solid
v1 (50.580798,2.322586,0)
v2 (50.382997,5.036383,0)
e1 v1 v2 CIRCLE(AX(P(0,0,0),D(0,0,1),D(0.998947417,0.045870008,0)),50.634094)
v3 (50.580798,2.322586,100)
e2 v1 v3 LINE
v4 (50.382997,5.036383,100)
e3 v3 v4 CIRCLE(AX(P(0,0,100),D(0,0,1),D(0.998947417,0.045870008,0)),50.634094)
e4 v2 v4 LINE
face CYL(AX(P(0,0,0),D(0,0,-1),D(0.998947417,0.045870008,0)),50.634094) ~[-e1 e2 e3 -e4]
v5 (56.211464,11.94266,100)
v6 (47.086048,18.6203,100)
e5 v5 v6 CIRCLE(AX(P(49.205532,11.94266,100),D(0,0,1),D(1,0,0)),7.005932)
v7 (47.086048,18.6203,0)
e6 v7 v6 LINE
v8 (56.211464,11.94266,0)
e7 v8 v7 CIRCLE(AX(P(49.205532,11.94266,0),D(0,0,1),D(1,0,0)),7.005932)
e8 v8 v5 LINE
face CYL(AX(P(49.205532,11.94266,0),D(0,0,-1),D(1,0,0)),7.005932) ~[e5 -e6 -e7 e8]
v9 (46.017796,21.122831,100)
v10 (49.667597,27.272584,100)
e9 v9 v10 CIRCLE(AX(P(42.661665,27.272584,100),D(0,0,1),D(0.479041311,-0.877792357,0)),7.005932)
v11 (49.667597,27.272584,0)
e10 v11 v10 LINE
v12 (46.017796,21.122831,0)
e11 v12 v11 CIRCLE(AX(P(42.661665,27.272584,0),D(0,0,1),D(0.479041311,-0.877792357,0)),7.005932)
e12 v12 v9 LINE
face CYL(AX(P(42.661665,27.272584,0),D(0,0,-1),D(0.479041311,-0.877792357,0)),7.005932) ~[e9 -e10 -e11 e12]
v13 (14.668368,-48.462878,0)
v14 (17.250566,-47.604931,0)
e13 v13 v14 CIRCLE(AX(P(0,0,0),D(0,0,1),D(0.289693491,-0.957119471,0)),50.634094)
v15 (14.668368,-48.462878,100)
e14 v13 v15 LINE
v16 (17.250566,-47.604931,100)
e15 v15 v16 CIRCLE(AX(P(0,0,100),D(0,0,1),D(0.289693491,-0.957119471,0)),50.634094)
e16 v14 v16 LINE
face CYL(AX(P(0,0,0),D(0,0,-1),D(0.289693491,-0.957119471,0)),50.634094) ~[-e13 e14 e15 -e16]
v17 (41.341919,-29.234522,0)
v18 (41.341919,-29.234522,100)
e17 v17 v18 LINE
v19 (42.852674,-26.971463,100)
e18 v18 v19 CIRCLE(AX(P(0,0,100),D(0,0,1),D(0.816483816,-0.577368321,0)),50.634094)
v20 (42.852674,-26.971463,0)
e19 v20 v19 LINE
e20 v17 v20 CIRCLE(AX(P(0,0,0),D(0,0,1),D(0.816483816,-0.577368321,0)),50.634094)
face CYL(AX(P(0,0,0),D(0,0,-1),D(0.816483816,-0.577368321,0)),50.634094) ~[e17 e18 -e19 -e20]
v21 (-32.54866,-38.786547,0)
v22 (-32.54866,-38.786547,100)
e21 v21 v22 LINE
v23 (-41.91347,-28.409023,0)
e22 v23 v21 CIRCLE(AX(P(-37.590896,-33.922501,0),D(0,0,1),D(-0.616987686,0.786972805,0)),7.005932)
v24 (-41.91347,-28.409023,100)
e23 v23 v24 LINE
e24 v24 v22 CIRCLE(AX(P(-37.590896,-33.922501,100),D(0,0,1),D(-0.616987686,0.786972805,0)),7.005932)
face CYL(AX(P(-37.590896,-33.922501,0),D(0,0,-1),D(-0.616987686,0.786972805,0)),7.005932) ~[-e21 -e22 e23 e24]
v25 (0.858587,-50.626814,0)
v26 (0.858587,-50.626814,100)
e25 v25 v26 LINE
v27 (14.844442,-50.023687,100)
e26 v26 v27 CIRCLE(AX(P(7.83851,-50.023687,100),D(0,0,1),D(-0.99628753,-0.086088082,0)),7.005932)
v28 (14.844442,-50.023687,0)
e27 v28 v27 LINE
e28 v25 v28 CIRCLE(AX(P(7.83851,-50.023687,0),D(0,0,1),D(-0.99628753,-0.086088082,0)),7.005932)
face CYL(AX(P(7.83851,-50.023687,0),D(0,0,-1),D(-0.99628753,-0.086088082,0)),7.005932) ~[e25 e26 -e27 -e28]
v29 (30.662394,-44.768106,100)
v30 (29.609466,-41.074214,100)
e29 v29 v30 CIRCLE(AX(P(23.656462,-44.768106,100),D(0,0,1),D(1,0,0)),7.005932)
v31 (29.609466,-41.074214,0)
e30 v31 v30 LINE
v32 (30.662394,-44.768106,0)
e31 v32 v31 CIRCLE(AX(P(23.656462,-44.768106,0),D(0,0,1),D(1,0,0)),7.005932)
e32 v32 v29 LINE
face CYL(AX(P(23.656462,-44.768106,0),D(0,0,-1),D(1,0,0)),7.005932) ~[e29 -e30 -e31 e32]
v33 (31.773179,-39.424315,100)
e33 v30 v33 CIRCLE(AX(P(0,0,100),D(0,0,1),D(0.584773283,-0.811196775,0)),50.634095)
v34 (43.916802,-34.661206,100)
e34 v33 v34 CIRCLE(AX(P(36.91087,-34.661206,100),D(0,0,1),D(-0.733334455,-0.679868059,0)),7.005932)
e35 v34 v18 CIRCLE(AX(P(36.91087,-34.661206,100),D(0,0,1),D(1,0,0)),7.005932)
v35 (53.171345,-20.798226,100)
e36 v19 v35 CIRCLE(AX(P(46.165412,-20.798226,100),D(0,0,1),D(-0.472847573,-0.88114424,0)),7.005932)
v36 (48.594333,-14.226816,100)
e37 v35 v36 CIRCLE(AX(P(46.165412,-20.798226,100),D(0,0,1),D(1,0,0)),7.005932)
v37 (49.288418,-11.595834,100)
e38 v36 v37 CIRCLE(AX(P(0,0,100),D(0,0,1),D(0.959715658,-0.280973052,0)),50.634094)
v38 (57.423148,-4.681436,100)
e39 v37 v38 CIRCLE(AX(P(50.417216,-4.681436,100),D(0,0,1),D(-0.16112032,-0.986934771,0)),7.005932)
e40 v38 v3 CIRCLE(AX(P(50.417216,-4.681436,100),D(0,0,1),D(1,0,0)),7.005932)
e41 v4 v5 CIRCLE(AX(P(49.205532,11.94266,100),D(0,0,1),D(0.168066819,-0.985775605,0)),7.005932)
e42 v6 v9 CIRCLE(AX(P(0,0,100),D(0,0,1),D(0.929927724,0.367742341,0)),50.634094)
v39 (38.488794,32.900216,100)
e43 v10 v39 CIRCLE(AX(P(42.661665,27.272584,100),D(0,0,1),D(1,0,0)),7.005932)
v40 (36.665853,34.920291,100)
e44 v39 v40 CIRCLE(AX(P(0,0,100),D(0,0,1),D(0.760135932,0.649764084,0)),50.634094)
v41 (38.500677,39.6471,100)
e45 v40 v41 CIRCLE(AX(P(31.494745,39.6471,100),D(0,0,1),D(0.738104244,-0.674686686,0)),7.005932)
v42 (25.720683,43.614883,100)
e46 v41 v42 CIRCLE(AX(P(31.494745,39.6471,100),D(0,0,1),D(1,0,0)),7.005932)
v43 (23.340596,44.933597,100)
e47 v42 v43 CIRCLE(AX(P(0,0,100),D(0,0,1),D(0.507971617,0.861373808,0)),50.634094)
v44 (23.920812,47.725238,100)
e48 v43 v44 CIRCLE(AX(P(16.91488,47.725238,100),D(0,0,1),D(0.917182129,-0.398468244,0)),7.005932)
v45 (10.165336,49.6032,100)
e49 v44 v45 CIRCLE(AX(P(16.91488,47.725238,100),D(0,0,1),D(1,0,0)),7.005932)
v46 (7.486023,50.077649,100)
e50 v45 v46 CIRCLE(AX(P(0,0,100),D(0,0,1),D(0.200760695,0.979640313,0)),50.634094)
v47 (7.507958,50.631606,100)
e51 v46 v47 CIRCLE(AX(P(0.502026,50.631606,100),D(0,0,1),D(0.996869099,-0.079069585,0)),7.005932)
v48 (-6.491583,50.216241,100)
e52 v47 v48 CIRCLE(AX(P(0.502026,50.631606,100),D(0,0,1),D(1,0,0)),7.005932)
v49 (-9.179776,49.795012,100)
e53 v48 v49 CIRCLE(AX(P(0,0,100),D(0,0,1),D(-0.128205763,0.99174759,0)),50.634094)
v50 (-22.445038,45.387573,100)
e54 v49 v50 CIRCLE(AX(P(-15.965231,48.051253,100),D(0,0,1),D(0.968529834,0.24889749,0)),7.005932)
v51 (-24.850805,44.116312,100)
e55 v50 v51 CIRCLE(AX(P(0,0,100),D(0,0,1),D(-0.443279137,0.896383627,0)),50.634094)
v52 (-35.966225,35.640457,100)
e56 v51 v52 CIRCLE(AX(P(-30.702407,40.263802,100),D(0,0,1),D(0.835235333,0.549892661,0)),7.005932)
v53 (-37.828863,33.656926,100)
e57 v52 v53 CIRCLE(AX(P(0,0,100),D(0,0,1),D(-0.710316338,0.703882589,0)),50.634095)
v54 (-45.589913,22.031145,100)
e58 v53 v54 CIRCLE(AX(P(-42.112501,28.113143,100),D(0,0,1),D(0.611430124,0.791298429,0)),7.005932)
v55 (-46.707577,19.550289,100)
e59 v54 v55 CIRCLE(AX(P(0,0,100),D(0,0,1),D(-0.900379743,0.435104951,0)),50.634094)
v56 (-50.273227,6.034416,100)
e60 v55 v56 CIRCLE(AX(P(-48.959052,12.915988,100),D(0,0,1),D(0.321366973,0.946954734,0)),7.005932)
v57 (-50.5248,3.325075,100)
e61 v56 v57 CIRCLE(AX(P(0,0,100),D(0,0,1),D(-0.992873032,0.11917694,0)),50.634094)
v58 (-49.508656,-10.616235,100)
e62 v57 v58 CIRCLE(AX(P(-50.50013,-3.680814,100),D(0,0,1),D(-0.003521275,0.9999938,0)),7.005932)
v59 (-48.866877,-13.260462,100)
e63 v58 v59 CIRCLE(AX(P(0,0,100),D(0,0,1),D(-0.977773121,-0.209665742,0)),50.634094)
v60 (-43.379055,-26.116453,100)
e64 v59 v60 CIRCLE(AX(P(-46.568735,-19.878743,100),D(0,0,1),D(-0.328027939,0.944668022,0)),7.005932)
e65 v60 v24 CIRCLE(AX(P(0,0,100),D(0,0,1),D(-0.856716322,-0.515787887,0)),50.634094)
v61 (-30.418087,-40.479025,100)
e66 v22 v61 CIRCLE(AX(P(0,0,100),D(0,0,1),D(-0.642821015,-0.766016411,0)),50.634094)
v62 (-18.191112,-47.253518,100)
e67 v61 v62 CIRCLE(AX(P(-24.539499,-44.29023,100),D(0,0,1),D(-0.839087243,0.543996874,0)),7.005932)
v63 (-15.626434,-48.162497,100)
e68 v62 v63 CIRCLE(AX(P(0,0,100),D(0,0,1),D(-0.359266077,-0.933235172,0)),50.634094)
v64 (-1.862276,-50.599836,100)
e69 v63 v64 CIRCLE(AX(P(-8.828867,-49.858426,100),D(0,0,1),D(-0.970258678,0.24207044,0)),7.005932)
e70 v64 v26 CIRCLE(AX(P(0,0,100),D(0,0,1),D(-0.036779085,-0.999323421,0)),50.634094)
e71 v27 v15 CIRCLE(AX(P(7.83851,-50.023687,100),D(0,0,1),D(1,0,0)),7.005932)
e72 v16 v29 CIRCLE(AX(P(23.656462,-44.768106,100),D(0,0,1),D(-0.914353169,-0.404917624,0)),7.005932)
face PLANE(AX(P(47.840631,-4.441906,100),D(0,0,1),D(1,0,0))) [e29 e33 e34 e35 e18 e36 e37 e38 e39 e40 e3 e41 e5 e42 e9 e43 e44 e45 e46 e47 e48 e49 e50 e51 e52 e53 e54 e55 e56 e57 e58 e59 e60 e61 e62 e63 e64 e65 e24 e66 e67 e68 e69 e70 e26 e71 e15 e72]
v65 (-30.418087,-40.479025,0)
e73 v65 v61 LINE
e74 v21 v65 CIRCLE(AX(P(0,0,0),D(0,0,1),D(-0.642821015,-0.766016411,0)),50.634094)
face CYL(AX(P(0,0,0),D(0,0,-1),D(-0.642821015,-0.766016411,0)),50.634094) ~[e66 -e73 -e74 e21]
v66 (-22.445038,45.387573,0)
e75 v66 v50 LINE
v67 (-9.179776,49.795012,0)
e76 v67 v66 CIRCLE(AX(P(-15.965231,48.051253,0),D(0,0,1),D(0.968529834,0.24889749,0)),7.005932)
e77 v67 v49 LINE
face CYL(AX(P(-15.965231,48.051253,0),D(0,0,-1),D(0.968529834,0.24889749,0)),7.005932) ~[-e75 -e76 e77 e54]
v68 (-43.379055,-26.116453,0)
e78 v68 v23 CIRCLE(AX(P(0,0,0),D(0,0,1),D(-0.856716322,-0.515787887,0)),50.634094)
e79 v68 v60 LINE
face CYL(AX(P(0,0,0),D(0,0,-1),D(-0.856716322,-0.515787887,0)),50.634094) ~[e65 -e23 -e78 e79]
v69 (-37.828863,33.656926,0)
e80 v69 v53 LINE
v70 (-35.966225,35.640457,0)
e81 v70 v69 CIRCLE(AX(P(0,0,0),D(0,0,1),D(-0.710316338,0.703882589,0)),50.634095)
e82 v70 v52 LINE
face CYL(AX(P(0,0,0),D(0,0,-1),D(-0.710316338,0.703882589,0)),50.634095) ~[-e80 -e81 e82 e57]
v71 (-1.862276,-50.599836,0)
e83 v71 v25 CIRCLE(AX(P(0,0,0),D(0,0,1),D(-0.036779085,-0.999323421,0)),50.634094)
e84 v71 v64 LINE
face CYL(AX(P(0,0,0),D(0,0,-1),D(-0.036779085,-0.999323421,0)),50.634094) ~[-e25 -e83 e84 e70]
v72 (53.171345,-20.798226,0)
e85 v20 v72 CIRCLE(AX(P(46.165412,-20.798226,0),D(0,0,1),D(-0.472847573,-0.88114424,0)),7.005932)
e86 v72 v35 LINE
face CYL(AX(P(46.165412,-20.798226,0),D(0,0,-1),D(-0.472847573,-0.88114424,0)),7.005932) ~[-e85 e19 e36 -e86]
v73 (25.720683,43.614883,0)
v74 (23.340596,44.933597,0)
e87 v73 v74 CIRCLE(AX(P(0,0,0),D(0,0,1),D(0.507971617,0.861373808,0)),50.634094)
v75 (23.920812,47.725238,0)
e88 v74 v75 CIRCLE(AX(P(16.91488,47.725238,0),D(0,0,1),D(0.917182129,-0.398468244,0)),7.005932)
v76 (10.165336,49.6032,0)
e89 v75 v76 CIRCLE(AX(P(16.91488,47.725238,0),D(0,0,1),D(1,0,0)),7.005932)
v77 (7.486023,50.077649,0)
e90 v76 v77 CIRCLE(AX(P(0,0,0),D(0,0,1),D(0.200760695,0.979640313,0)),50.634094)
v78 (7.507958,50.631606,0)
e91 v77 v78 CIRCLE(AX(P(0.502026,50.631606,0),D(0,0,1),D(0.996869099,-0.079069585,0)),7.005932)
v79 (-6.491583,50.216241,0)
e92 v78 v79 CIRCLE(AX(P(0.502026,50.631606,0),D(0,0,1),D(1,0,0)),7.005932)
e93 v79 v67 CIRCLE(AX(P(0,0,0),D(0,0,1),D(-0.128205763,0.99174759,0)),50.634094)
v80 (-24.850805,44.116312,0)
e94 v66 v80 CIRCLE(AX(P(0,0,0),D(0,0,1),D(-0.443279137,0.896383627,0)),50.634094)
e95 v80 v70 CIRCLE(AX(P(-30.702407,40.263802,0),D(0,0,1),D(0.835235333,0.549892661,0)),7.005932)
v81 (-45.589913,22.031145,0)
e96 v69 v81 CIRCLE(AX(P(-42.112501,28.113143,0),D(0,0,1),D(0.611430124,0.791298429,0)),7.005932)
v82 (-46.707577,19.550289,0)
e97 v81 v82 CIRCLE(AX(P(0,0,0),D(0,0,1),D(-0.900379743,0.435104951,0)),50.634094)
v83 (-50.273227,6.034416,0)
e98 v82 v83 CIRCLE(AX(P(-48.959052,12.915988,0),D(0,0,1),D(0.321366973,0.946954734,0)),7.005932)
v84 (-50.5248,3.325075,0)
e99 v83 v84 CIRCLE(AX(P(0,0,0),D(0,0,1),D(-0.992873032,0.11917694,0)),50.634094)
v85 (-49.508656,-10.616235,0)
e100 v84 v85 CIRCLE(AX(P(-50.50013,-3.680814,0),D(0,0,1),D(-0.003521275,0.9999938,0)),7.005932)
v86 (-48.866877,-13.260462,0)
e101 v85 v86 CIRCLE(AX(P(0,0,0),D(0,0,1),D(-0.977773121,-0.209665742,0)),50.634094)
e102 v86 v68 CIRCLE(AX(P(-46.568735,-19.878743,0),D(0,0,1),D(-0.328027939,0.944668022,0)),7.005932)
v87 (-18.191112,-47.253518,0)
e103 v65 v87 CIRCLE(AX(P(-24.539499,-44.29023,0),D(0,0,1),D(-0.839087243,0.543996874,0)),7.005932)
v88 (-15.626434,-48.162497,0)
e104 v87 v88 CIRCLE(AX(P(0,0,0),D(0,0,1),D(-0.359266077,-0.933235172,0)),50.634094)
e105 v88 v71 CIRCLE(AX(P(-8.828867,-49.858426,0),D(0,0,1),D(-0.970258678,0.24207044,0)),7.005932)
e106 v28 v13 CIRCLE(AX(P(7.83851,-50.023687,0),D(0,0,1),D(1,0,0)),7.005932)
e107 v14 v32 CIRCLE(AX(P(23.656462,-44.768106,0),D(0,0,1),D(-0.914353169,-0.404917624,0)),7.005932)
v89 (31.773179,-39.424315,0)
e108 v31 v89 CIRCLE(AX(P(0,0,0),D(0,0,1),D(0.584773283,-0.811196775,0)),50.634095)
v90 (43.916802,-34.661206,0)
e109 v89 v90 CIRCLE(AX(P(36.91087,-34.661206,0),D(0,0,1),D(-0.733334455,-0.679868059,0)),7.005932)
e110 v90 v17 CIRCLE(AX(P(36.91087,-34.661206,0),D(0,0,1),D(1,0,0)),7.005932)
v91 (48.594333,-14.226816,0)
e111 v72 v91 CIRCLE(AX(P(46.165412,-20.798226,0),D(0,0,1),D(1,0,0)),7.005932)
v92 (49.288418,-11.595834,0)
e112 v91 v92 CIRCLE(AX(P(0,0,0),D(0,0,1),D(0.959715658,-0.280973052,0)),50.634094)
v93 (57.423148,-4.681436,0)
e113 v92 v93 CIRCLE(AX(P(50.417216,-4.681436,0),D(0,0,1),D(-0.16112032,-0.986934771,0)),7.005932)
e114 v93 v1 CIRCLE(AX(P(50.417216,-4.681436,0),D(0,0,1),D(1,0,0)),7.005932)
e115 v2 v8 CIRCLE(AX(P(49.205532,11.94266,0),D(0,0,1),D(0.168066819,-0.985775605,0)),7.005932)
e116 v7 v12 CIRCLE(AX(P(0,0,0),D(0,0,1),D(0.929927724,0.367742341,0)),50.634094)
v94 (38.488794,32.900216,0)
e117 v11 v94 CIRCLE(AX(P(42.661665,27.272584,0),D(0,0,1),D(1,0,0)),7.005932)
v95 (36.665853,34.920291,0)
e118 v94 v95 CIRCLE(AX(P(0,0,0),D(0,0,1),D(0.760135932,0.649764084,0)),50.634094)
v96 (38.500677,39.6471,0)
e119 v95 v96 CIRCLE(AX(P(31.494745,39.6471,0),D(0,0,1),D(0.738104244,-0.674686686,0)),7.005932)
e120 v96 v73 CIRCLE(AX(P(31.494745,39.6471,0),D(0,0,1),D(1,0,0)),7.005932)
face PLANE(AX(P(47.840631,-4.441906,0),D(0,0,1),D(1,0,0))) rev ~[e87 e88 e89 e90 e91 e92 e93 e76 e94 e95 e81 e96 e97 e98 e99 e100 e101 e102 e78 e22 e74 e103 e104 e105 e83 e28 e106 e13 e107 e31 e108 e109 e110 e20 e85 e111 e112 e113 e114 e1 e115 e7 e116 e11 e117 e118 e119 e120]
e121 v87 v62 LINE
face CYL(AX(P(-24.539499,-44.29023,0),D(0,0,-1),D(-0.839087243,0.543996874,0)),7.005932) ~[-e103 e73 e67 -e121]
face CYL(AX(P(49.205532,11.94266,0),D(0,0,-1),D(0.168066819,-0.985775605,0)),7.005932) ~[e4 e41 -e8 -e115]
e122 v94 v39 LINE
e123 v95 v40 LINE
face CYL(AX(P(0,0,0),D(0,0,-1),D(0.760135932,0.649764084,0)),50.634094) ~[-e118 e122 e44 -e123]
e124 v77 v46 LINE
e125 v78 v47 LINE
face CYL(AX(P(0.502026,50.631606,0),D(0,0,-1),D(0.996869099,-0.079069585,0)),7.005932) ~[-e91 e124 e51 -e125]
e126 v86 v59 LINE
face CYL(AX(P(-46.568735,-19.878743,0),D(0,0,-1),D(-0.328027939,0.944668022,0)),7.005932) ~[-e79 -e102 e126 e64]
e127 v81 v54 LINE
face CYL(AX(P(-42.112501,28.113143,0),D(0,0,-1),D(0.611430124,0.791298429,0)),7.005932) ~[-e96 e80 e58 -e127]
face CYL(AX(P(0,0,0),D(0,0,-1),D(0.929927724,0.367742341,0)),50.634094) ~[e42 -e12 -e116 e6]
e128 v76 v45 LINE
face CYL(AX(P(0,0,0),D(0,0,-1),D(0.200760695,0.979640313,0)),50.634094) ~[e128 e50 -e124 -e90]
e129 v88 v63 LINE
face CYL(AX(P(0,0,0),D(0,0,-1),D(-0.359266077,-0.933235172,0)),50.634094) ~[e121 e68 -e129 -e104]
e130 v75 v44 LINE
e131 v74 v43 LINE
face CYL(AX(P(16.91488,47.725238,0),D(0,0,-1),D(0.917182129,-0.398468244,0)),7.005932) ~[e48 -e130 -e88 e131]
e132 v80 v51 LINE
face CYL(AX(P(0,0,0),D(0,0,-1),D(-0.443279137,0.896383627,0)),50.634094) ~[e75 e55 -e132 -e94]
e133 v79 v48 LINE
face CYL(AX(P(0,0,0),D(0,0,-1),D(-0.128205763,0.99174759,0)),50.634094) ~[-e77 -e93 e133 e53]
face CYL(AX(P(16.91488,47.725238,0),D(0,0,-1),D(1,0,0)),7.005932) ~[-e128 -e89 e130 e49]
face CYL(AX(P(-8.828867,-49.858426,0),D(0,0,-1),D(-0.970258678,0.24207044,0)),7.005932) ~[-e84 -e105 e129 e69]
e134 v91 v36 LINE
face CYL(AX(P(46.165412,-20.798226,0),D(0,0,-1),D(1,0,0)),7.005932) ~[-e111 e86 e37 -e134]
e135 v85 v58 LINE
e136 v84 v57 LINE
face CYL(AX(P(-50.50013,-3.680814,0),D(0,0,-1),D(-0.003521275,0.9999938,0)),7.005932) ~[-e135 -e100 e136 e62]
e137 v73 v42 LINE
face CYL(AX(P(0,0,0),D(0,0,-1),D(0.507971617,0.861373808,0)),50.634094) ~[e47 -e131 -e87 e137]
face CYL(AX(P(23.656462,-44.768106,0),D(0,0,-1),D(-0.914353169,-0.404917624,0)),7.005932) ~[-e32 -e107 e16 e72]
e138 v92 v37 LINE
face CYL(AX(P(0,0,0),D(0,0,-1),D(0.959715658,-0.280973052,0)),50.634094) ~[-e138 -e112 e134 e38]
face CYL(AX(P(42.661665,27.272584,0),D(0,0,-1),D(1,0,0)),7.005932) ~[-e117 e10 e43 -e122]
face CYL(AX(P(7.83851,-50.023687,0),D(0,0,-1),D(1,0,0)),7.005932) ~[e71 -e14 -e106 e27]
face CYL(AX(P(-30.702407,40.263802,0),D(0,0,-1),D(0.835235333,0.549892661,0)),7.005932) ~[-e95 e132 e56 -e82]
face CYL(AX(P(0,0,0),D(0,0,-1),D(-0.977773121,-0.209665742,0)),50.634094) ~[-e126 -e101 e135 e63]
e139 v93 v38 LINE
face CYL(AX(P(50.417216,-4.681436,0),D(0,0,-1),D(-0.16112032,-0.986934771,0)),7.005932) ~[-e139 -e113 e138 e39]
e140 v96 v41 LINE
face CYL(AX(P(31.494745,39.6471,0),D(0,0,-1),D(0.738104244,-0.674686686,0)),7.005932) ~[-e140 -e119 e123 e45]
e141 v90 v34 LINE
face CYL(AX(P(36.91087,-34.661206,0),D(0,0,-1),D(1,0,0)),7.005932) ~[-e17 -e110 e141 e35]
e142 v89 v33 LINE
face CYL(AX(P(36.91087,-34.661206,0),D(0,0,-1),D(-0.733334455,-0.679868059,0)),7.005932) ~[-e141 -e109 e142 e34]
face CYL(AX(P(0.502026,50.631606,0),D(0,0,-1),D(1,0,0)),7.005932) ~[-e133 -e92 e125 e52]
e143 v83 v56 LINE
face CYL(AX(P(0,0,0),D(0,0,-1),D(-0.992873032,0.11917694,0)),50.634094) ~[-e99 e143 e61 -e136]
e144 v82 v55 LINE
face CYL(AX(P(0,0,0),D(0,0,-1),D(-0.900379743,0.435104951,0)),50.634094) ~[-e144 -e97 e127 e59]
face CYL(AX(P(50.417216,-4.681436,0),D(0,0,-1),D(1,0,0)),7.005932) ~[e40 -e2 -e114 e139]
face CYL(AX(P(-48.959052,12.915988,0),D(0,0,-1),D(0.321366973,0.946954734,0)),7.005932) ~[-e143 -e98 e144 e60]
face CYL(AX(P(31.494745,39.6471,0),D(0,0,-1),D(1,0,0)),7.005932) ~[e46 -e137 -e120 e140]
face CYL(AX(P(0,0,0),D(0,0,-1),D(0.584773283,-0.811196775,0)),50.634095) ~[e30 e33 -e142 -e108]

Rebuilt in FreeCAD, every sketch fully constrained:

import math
import FreeCAD as App
import Part
import Sketcher
from FreeCAD import Vector
Q = App.Units.Quantity

doc = App.newDocument("Part")
body = doc.addObject("PartDesign::Body", "Body")

# Sketch on XY plane
sketch1 = doc.addObject("Sketcher::SketchObject", "Sketch")
body.addObject(sketch1)
sketch1.AttachmentSupport = (doc.XY_Plane, [""])
sketch1.MapMode = "FlatFace"
sketch1.addGeometry(Part.ArcOfCircle(Part.Circle(Vector(50.4, -4.7, 0), Vector(0, 0, 1), 7), math.radians(-99), math.radians(0)), False)
sketch1.addGeometry(Part.ArcOfCircle(Part.Circle(Vector(50.4, -4.7, 0), Vector(0, 0, 1), 7), math.radians(0), math.radians(89)), False)
sketch1.addGeometry(Part.ArcOfCircle(Part.Circle(Vector(0, 0, 0), Vector(0, 0, 1), 50.6), math.radians(2.63), math.radians(5.71)), False)
sketch1.addGeometry(Part.ArcOfCircle(Part.Circle(Vector(49.2, 11.9, 0), Vector(0, 0, 1), 7), math.radians(-80), math.radians(0)), False)
sketch1.addGeometry(Part.ArcOfCircle(Part.Circle(Vector(49.2, 11.9, 0), Vector(0, 0, 1), 7), math.radians(0), math.radians(108)), False)
sketch1.addGeometry(Part.ArcOfCircle(Part.Circle(Vector(0, 0, 0), Vector(0, 0, 1), 50.6), math.radians(21.58), math.radians(24.66)), False)
sketch1.addGeometry(Part.ArcOfCircle(Part.Circle(Vector(42.7, 27.3, 0), Vector(0, 0, 1), 7), math.radians(-61), math.radians(0)), False)
sketch1.addGeometry(Part.ArcOfCircle(Part.Circle(Vector(42.7, 27.3, 0), Vector(0, 0, 1), 7), math.radians(0), math.radians(127)), False)
sketch1.addGeometry(Part.ArcOfCircle(Part.Circle(Vector(0, 0, 0), Vector(0, 0, 1), 50.6), math.radians(40.52), math.radians(43.6)), False)
sketch1.addGeometry(Part.ArcOfCircle(Part.Circle(Vector(31.5, 39.6, 0), Vector(0, 0, 1), 7), math.radians(-42), math.radians(0)), False)
sketch1.addGeometry(Part.ArcOfCircle(Part.Circle(Vector(31.5, 39.6, 0), Vector(0, 0, 1), 7), math.radians(0), math.radians(146)), False)
sketch1.addGeometry(Part.ArcOfCircle(Part.Circle(Vector(0, 0, 0), Vector(0, 0, 1), 50.6), math.radians(59.47), math.radians(62.55)), False)
sketch1.addGeometry(Part.ArcOfCircle(Part.Circle(Vector(16.9, 47.7, 0), Vector(0, 0, 1), 7), math.radians(-23), math.radians(0)), False)
sketch1.addGeometry(Part.ArcOfCircle(Part.Circle(Vector(16.9, 47.7, 0), Vector(0, 0, 1), 7), math.radians(0), math.radians(164)), False)
sketch1.addGeometry(Part.ArcOfCircle(Part.Circle(Vector(0, 0, 0), Vector(0, 0, 1), 50.6), math.radians(78.42), math.radians(81.5)), False)
sketch1.addGeometry(Part.ArcOfCircle(Part.Circle(Vector(0.5, 50.6, 0), Vector(0, 0, 1), 7), math.radians(-4.54), math.radians(0)), False)
sketch1.addGeometry(Part.ArcOfCircle(Part.Circle(Vector(0.5, 50.6, 0), Vector(0, 0, 1), 7), math.radians(0), math.radians(183)), False)
sketch1.addGeometry(Part.ArcOfCircle(Part.Circle(Vector(0, 0, 0), Vector(0, 0, 1), 50.6), math.radians(97.37), math.radians(100.45)), False)
sketch1.addGeometry(Part.ArcOfCircle(Part.Circle(Vector(-16, 48.1, 0), Vector(0, 0, 1), 7), math.radians(14), math.radians(202)), False)
sketch1.addGeometry(Part.ArcOfCircle(Part.Circle(Vector(0, 0, 0), Vector(0, 0, 1), 50.6), math.radians(116.31), math.radians(119.39)), False)
sketch1.addGeometry(Part.ArcOfCircle(Part.Circle(Vector(-30.7, 40.3, 0), Vector(0, 0, 1), 7), math.radians(33), math.radians(221)), False)
sketch1.addGeometry(Part.ArcOfCircle(Part.Circle(Vector(0, 0, 0), Vector(0, 0, 1), 50.6), math.radians(135.26), math.radians(138.34)), False)
sketch1.addGeometry(Part.ArcOfCircle(Part.Circle(Vector(-42.1, 28.1, 0), Vector(0, 0, 1), 7), math.radians(52), math.radians(240)), False)
sketch1.addGeometry(Part.ArcOfCircle(Part.Circle(Vector(0, 0, 0), Vector(0, 0, 1), 50.6), math.radians(154.21), math.radians(157.29)), False)
sketch1.addGeometry(Part.ArcOfCircle(Part.Circle(Vector(-49, 12.9, 0), Vector(0, 0, 1), 7), math.radians(71), math.radians(259)), False)
sketch1.addGeometry(Part.ArcOfCircle(Part.Circle(Vector(0, 0, 0), Vector(0, 0, 1), 50.6), math.radians(173.16), math.radians(176.23)), False)
sketch1.addGeometry(Part.ArcOfCircle(Part.Circle(Vector(-50.5, -3.7, 0), Vector(0, 0, 1), 7), math.radians(90), math.radians(278)), False)
sketch1.addGeometry(Part.ArcOfCircle(Part.Circle(Vector(0, 0, 0), Vector(0, 0, 1), 50.6), math.radians(-167.9), math.radians(-164.82)), False)
sketch1.addGeometry(Part.ArcOfCircle(Part.Circle(Vector(-46.6, -19.9, 0), Vector(0, 0, 1), 7), math.radians(109), math.radians(297)), False)
sketch1.addGeometry(Part.ArcOfCircle(Part.Circle(Vector(0, 0, 0), Vector(0, 0, 1), 50.6), math.radians(-148.95), math.radians(-145.87)), False)
sketch1.addGeometry(Part.ArcOfCircle(Part.Circle(Vector(-37.6, -33.9, 0), Vector(0, 0, 1), 7), math.radians(128), math.radians(316)), False)
sketch1.addGeometry(Part.ArcOfCircle(Part.Circle(Vector(0, 0, 0), Vector(0, 0, 1), 50.6), math.radians(-130), math.radians(-126.92)), False)
sketch1.addGeometry(Part.ArcOfCircle(Part.Circle(Vector(-24.5, -44.3, 0), Vector(0, 0, 1), 7), math.radians(147), math.radians(335)), False)
sketch1.addGeometry(Part.ArcOfCircle(Part.Circle(Vector(0, 0, 0), Vector(0, 0, 1), 50.6), math.radians(-111.06), math.radians(-107.98)), False)
sketch1.addGeometry(Part.ArcOfCircle(Part.Circle(Vector(-8.8, -49.9, 0), Vector(0, 0, 1), 7), math.radians(166), math.radians(354)), False)
sketch1.addGeometry(Part.ArcOfCircle(Part.Circle(Vector(0, 0, 0), Vector(0, 0, 1), 50.6), math.radians(-92.11), math.radians(-89.03)), False)
sketch1.addGeometry(Part.ArcOfCircle(Part.Circle(Vector(7.8, -50, 0), Vector(0, 0, 1), 7), math.radians(-175), math.radians(0)), False)
sketch1.addGeometry(Part.ArcOfCircle(Part.Circle(Vector(7.8, -50, 0), Vector(0, 0, 1), 7), math.radians(0), math.radians(12.87)), False)
sketch1.addGeometry(Part.ArcOfCircle(Part.Circle(Vector(0, 0, 0), Vector(0, 0, 1), 50.6), math.radians(-73.16), math.radians(-70.08)), False)
sketch1.addGeometry(Part.ArcOfCircle(Part.Circle(Vector(23.7, -44.8, 0), Vector(0, 0, 1), 7), math.radians(-156), math.radians(0)), False)
sketch1.addGeometry(Part.ArcOfCircle(Part.Circle(Vector(23.7, -44.8, 0), Vector(0, 0, 1), 7), math.radians(0), math.radians(32)), False)
sketch1.addGeometry(Part.ArcOfCircle(Part.Circle(Vector(0, 0, 0), Vector(0, 0, 1), 50.6), math.radians(-54.21), math.radians(-51.13)), False)
sketch1.addGeometry(Part.ArcOfCircle(Part.Circle(Vector(36.9, -34.7, 0), Vector(0, 0, 1), 7), math.radians(-137), math.radians(0)), False)
sketch1.addGeometry(Part.ArcOfCircle(Part.Circle(Vector(36.9, -34.7, 0), Vector(0, 0, 1), 7), math.radians(0), math.radians(51)), False)
sketch1.addGeometry(Part.ArcOfCircle(Part.Circle(Vector(0, 0, 0), Vector(0, 0, 1), 50.6), math.radians(-35.27), math.radians(-32.19)), False)
sketch1.addGeometry(Part.ArcOfCircle(Part.Circle(Vector(46.2, -20.8, 0), Vector(0, 0, 1), 7), math.radians(-118), math.radians(0)), False)
sketch1.addGeometry(Part.ArcOfCircle(Part.Circle(Vector(46.2, -20.8, 0), Vector(0, 0, 1), 7), math.radians(0), math.radians(70)), False)
sketch1.addGeometry(Part.ArcOfCircle(Part.Circle(Vector(0, 0, 0), Vector(0, 0, 1), 50.6), math.radians(-16.32), math.radians(-13.24)), False)
sketch1.addConstraint(Sketcher.Constraint("Tangent", 0, 2, 1, 1))
sketch1.addConstraint(Sketcher.Constraint("Coincident", 1, 2, 2, 1))
sketch1.addConstraint(Sketcher.Constraint("Coincident", 2, 2, 3, 1))
sketch1.addConstraint(Sketcher.Constraint("Tangent", 3, 2, 4, 1))
sketch1.addConstraint(Sketcher.Constraint("Coincident", 4, 2, 5, 1))
sketch1.addConstraint(Sketcher.Constraint("Coincident", 5, 2, 6, 1))
sketch1.addConstraint(Sketcher.Constraint("Tangent", 6, 2, 7, 1))
sketch1.addConstraint(Sketcher.Constraint("Coincident", 7, 2, 8, 1))
sketch1.addConstraint(Sketcher.Constraint("Coincident", 8, 2, 9, 1))
sketch1.addConstraint(Sketcher.Constraint("Tangent", 9, 2, 10, 1))
sketch1.addConstraint(Sketcher.Constraint("Coincident", 10, 2, 11, 1))
sketch1.addConstraint(Sketcher.Constraint("Coincident", 11, 2, 12, 1))
sketch1.addConstraint(Sketcher.Constraint("Tangent", 12, 2, 13, 1))
sketch1.addConstraint(Sketcher.Constraint("Coincident", 13, 2, 14, 1))
sketch1.addConstraint(Sketcher.Constraint("Coincident", 14, 2, 15, 1))
sketch1.addConstraint(Sketcher.Constraint("Tangent", 15, 2, 16, 1))
sketch1.addConstraint(Sketcher.Constraint("Coincident", 16, 2, 17, 1))
sketch1.addConstraint(Sketcher.Constraint("Coincident", 17, 2, 18, 1))
sketch1.addConstraint(Sketcher.Constraint("Coincident", 18, 2, 19, 1))
sketch1.addConstraint(Sketcher.Constraint("Coincident", 19, 2, 20, 1))
sketch1.addConstraint(Sketcher.Constraint("Coincident", 20, 2, 21, 1))
sketch1.addConstraint(Sketcher.Constraint("Coincident", 21, 2, 22, 1))
sketch1.addConstraint(Sketcher.Constraint("Coincident", 22, 2, 23, 1))
sketch1.addConstraint(Sketcher.Constraint("Coincident", 23, 2, 24, 1))
sketch1.addConstraint(Sketcher.Constraint("Coincident", 24, 2, 25, 1))
sketch1.addConstraint(Sketcher.Constraint("Coincident", 25, 2, 26, 1))
sketch1.addConstraint(Sketcher.Constraint("Coincident", 26, 2, 27, 1))
sketch1.addConstraint(Sketcher.Constraint("Coincident", 27, 2, 28, 1))
sketch1.addConstraint(Sketcher.Constraint("Coincident", 28, 2, 29, 1))
sketch1.addConstraint(Sketcher.Constraint("Coincident", 29, 2, 30, 1))
sketch1.addConstraint(Sketcher.Constraint("Coincident", 30, 2, 31, 1))
sketch1.addConstraint(Sketcher.Constraint("Coincident", 31, 2, 32, 1))
sketch1.addConstraint(Sketcher.Constraint("Coincident", 32, 2, 33, 1))
sketch1.addConstraint(Sketcher.Constraint("Coincident", 33, 2, 34, 1))
sketch1.addConstraint(Sketcher.Constraint("Coincident", 34, 2, 35, 1))
sketch1.addConstraint(Sketcher.Constraint("Coincident", 35, 2, 36, 1))
sketch1.addConstraint(Sketcher.Constraint("Tangent", 36, 2, 37, 1))
sketch1.addConstraint(Sketcher.Constraint("Coincident", 37, 2, 38, 1))
sketch1.addConstraint(Sketcher.Constraint("Coincident", 38, 2, 39, 1))
sketch1.addConstraint(Sketcher.Constraint("Tangent", 39, 2, 40, 1))
sketch1.addConstraint(Sketcher.Constraint("Coincident", 40, 2, 41, 1))
sketch1.addConstraint(Sketcher.Constraint("Coincident", 41, 2, 42, 1))
sketch1.addConstraint(Sketcher.Constraint("Tangent", 42, 2, 43, 1))
sketch1.addConstraint(Sketcher.Constraint("Coincident", 43, 2, 44, 1))
sketch1.addConstraint(Sketcher.Constraint("Coincident", 44, 2, 45, 1))
sketch1.addConstraint(Sketcher.Constraint("Tangent", 45, 2, 46, 1))
sketch1.addConstraint(Sketcher.Constraint("Coincident", 46, 2, 47, 1))
sketch1.addConstraint(Sketcher.Constraint("Coincident", 47, 2, 0, 1))
sketch1.addConstraint(Sketcher.Constraint("Coincident", 2, 3, -1, 1))
sketch1.addConstraint(Sketcher.Constraint("Coincident", 5, 3, -1, 1))
sketch1.addConstraint(Sketcher.Constraint("Coincident", 8, 3, -1, 1))
sketch1.addConstraint(Sketcher.Constraint("Coincident", 11, 3, -1, 1))
sketch1.addConstraint(Sketcher.Constraint("Coincident", 14, 3, -1, 1))
sketch1.addConstraint(Sketcher.Constraint("Coincident", 17, 3, -1, 1))
sketch1.addConstraint(Sketcher.Constraint("Coincident", 19, 3, -1, 1))
sketch1.addConstraint(Sketcher.Constraint("Coincident", 21, 3, -1, 1))
sketch1.addConstraint(Sketcher.Constraint("Coincident", 23, 3, -1, 1))
sketch1.addConstraint(Sketcher.Constraint("Coincident", 25, 3, -1, 1))
sketch1.addConstraint(Sketcher.Constraint("Coincident", 27, 3, -1, 1))
sketch1.addConstraint(Sketcher.Constraint("Coincident", 29, 3, -1, 1))
sketch1.addConstraint(Sketcher.Constraint("Coincident", 31, 3, -1, 1))
sketch1.addConstraint(Sketcher.Constraint("Coincident", 33, 3, -1, 1))
sketch1.addConstraint(Sketcher.Constraint("Coincident", 35, 3, -1, 1))
sketch1.addConstraint(Sketcher.Constraint("Coincident", 38, 3, -1, 1))
sketch1.addConstraint(Sketcher.Constraint("Coincident", 41, 3, -1, 1))
sketch1.addConstraint(Sketcher.Constraint("Coincident", 44, 3, -1, 1))
sketch1.addConstraint(Sketcher.Constraint("Coincident", 47, 3, -1, 1))
sketch1.addConstraint(Sketcher.Constraint("Equal", 0, 1))
sketch1.addConstraint(Sketcher.Constraint("Equal", 1, 3))
sketch1.addConstraint(Sketcher.Constraint("Equal", 3, 4))
sketch1.addConstraint(Sketcher.Constraint("Equal", 2, 5))
sketch1.addConstraint(Sketcher.Constraint("Equal", 4, 6))
sketch1.addConstraint(Sketcher.Constraint("Equal", 6, 7))
sketch1.addConstraint(Sketcher.Constraint("Equal", 5, 8))
sketch1.addConstraint(Sketcher.Constraint("Equal", 7, 9))
sketch1.addConstraint(Sketcher.Constraint("Equal", 9, 10))
sketch1.addConstraint(Sketcher.Constraint("Equal", 8, 11))
sketch1.addConstraint(Sketcher.Constraint("Equal", 10, 12))
sketch1.addConstraint(Sketcher.Constraint("Equal", 12, 13))
sketch1.addConstraint(Sketcher.Constraint("Equal", 11, 14))
sketch1.addConstraint(Sketcher.Constraint("Equal", 13, 15))
sketch1.addConstraint(Sketcher.Constraint("Equal", 15, 16))
sketch1.addConstraint(Sketcher.Constraint("Equal", 14, 17))
sketch1.addConstraint(Sketcher.Constraint("Equal", 16, 18))
sketch1.addConstraint(Sketcher.Constraint("Equal", 17, 19))
sketch1.addConstraint(Sketcher.Constraint("Equal", 18, 20))
sketch1.addConstraint(Sketcher.Constraint("Equal", 19, 21))
sketch1.addConstraint(Sketcher.Constraint("Equal", 20, 22))
sketch1.addConstraint(Sketcher.Constraint("Equal", 21, 23))
sketch1.addConstraint(Sketcher.Constraint("Equal", 22, 24))
sketch1.addConstraint(Sketcher.Constraint("Equal", 23, 25))
sketch1.addConstraint(Sketcher.Constraint("Equal", 24, 26))
sketch1.addConstraint(Sketcher.Constraint("Equal", 25, 27))
sketch1.addConstraint(Sketcher.Constraint("Equal", 26, 28))
sketch1.addConstraint(Sketcher.Constraint("Equal", 27, 29))
sketch1.addConstraint(Sketcher.Constraint("Equal", 28, 30))
sketch1.addConstraint(Sketcher.Constraint("Equal", 29, 31))
sketch1.addConstraint(Sketcher.Constraint("Equal", 30, 32))
sketch1.addConstraint(Sketcher.Constraint("Equal", 31, 33))
sketch1.addConstraint(Sketcher.Constraint("Equal", 32, 34))
sketch1.addConstraint(Sketcher.Constraint("Equal", 33, 35))
sketch1.addConstraint(Sketcher.Constraint("Equal", 34, 36))
sketch1.addConstraint(Sketcher.Constraint("Equal", 36, 37))
sketch1.addConstraint(Sketcher.Constraint("Equal", 35, 38))
sketch1.addConstraint(Sketcher.Constraint("Equal", 37, 39))
sketch1.addConstraint(Sketcher.Constraint("Equal", 39, 40))
sketch1.addConstraint(Sketcher.Constraint("Equal", 38, 41))
sketch1.addConstraint(Sketcher.Constraint("Equal", 40, 42))
sketch1.addConstraint(Sketcher.Constraint("Equal", 42, 43))
sketch1.addConstraint(Sketcher.Constraint("Equal", 41, 44))
sketch1.addConstraint(Sketcher.Constraint("Equal", 43, 45))
sketch1.addConstraint(Sketcher.Constraint("Equal", 45, 46))
sketch1.addConstraint(Sketcher.Constraint("Equal", 44, 47))
sketch1.addConstraint(Sketcher.Constraint("Horizontal", 1, 3, 0, 2))
sketch1.addConstraint(Sketcher.Constraint("Horizontal", 4, 3, 3, 2))
sketch1.addConstraint(Sketcher.Constraint("Horizontal", 7, 3, 6, 2))
sketch1.addConstraint(Sketcher.Constraint("Horizontal", 10, 3, 9, 2))
sketch1.addConstraint(Sketcher.Constraint("Horizontal", 13, 3, 12, 2))
sketch1.addConstraint(Sketcher.Constraint("Horizontal", 16, 3, 15, 2))
sketch1.addConstraint(Sketcher.Constraint("Horizontal", 37, 3, 36, 2))
sketch1.addConstraint(Sketcher.Constraint("Horizontal", 40, 3, 39, 2))
sketch1.addConstraint(Sketcher.Constraint("Horizontal", 43, 3, 42, 2))
sketch1.addConstraint(Sketcher.Constraint("Horizontal", 46, 3, 45, 2))
sketch1.addConstraint(Sketcher.Constraint("Radius", 0, Q("7.005932 mm")))
sketch1.addConstraint(Sketcher.Constraint("Radius", 2, Q("50.634094 mm")))
sketch1.addConstraint(Sketcher.Constraint("DistanceY", -1, 1, 9, 3, Q("39.6471 mm")))
sketch1.addConstraint(Sketcher.Constraint("DistanceY", -1, 1, 20, 3, Q("40.263802 mm")))
sketch1.addConstraint(Sketcher.Constraint("DistanceX", 22, 3, -1, 1, Q("42.112501 mm")))
sketch1.addConstraint(Sketcher.Constraint("DistanceY", 30, 3, -1, 1, Q("33.922501 mm")))
sketch1.addConstraint(Sketcher.Constraint("DistanceX", 32, 3, -1, 1, Q("24.539499 mm")))
sketch1.addConstraint(Sketcher.Constraint("DistanceY", -1, 1, 4, 2, Q("18.6203 mm")))
sketch1.addConstraint(Sketcher.Constraint("DistanceY", -1, 1, 13, 2, Q("49.6032 mm")))
sketch1.addConstraint(Sketcher.Constraint("DistanceX", 25, 2, -1, 1, Q("50.5248 mm")))
sketch1.addConstraint(Sketcher.Constraint("DistanceX", -1, 1, 3, 3, Q("49.205532 mm")))
sketch1.addConstraint(Sketcher.Constraint("DistanceX", -1, 1, 12, 3, Q("16.91488 mm")))
sketch1.addConstraint(Sketcher.Constraint("DistanceX", 18, 3, -1, 1, Q("15.965231 mm")))
sketch1.addConstraint(Sketcher.Constraint("DistanceX", 24, 3, -1, 1, Q("48.959052 mm")))
sketch1.addConstraint(Sketcher.Constraint("DistanceY", -1, 1, 24, 3, Q("12.915988 mm")))
sketch1.addConstraint(Sketcher.Constraint("DistanceX", 26, 3, -1, 1, Q("50.50013 mm")))
sketch1.addConstraint(Sketcher.Constraint("DistanceY", 32, 3, -1, 1, Q("44.29023 mm")))
sketch1.addConstraint(Sketcher.Constraint("DistanceX", -1, 1, 36, 3, Q("7.83851 mm")))
sketch1.addConstraint(Sketcher.Constraint("DistanceX", -1, 1, 42, 3, Q("36.91087 mm")))
sketch1.addConstraint(Sketcher.Constraint("DistanceX", -1, 1, 0, 2, Q("57.423148 mm")))
sketch1.addConstraint(Sketcher.Constraint("DistanceY", -1, 1, 5, 2, Q("21.122831 mm")))
sketch1.addConstraint(Sketcher.Constraint("DistanceY", -1, 1, 8, 2, Q("34.920291 mm")))
sketch1.addConstraint(Sketcher.Constraint("DistanceY", -1, 1, 14, 2, Q("50.077649 mm")))
sketch1.addConstraint(Sketcher.Constraint("DistanceY", -1, 1, 17, 2, Q("49.795012 mm")))
sketch1.addConstraint(Sketcher.Constraint("DistanceX", 29, 2, -1, 1, Q("41.91347 mm")))
sketch1.addConstraint(Sketcher.Constraint("DistanceY", 38, 2, -1, 1, Q("47.604931 mm")))
sketch1.addConstraint(Sketcher.Constraint("DistanceX", -1, 1, 41, 2, Q("31.773179 mm")))
sketch1.addConstraint(Sketcher.Constraint("DistanceY", 0, 3, -1, 1, Q("4.681436 mm")))
sketch1.addConstraint(Sketcher.Constraint("DistanceX", -1, 1, 6, 3, Q("42.661665 mm")))
sketch1.addConstraint(Sketcher.Constraint("DistanceX", -1, 1, 15, 3, Q("0.502026 mm")))
sketch1.addConstraint(Sketcher.Constraint("DistanceX", 20, 3, -1, 1, Q("30.702407 mm")))
sketch1.addConstraint(Sketcher.Constraint("DistanceY", -1, 1, 22, 3, Q("28.113143 mm")))
sketch1.addConstraint(Sketcher.Constraint("DistanceX", 28, 3, -1, 1, Q("46.568735 mm")))
sketch1.addConstraint(Sketcher.Constraint("DistanceY", 28, 3, -1, 1, Q("19.878743 mm")))
sketch1.addConstraint(Sketcher.Constraint("DistanceX", 34, 3, -1, 1, Q("8.828867 mm")))
sketch1.addConstraint(Sketcher.Constraint("DistanceY", 34, 3, -1, 1, Q("49.858426 mm")))
sketch1.addConstraint(Sketcher.Constraint("DistanceY", 36, 3, -1, 1, Q("50.023687 mm")))
sketch1.addConstraint(Sketcher.Constraint("DistanceX", -1, 1, 39, 3, Q("23.656462 mm")))
sketch1.addConstraint(Sketcher.Constraint("DistanceX", -1, 1, 45, 3, Q("46.165412 mm")))
sketch1.addConstraint(Sketcher.Constraint("DistanceY", 45, 3, -1, 1, Q("20.798226 mm")))
pad1 = doc.addObject("PartDesign::Pad", "Pad")
body.addObject(pad1)
pad1.Profile = sketch1
pad1.Length = 100

doc.recompute()
